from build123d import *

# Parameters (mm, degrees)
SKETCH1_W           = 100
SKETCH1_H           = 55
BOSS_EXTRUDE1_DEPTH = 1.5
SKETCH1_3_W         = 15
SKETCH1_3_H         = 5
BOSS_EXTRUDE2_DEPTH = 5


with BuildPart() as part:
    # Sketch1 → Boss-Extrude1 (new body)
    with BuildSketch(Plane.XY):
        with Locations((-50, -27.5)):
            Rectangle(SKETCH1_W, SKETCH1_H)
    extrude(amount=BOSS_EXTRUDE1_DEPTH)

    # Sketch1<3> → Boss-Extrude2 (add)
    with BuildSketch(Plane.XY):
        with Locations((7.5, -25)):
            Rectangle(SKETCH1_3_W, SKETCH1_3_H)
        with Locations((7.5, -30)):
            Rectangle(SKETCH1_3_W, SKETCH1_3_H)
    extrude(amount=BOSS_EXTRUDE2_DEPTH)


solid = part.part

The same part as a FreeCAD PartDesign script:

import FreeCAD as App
import Part
import Sketcher

V = App.Vector


def add_polygon(sketch, points):
    """Adds a closed chain of lines whose ends are joined by coincident constraints."""
    first, n = sketch.GeometryCount, len(points)
    for a, b in zip(points, points[1:] + points[:1]):
        sketch.addGeometry(Part.LineSegment(App.Vector(*a, 0), App.Vector(*b, 0)), False)
    for i in range(n):
        sketch.addConstraint(Sketcher.Constraint("Coincident", first + i, 2, first + (i + 1) % n, 1))

doc = App.newDocument("Part")
params = doc.addObject("Spreadsheet::Sheet", "Params")
for row, (alias, value) in enumerate([
    ("sketch1_width", "100 mm"),
    ("sketch1_height", "55 mm"),
    ("pad1_length", "1.5 mm"),
    ("sketch2_width", "15 mm"),
    ("sketch2_height", "10 mm"),
    ("pad2_length", "5 mm"),
], start=1):
    params.set(f"A{row}", alias)
    params.set(f"B{row}", "=" + value)
    params.setAlias(f"B{row}", alias)

body = doc.addObject("PartDesign::Body", "Body")

sketch1 = body.newObject("Sketcher::SketchObject", "Sketch")
sketch1.AttachmentSupport = (doc.getObject("XY_Plane"), [""])
sketch1.MapMode = "FlatFace"
add_polygon(sketch1, [(-100, 0), (-100, -55), (0, -55), (0, 0)])
sketch1.addConstraint([
    Sketcher.Constraint("Vertical", 0),
    Sketcher.Constraint("Horizontal", 1),
    Sketcher.Constraint("Vertical", 2),
    Sketcher.Constraint("Horizontal", 3),
    Sketcher.Constraint("Coincident", 2, 2, -1, 1),
    Sketcher.Constraint("DistanceX", 1, 1, 1, 2, 100.0),
    Sketcher.Constraint("DistanceY", 0, 2, 0, 1, 55.0),
])
sketch1.setExpression("Constraints[9]", "Params.sketch1_width")
sketch1.setExpression("Constraints[10]", "Params.sketch1_height")
pad1 = body.newObject("PartDesign::Pad", "Pad")
pad1.Profile = sketch1
pad1.setExpression("Length", "Params.pad1_length")

sketch2 = body.newObject("Sketcher::SketchObject", "Sketch001")
sketch2.AttachmentSupport = (doc.getObject("XY_Plane"), [""])
sketch2.MapMode = "FlatFace"
add_polygon(sketch2, [(0, -22.5), (0, -32.5), (15, -32.5), (15, -22.5)])
sketch2.addConstraint([
    Sketcher.Constraint("Vertical", 0),
    Sketcher.Constraint("Horizontal", 1),
    Sketcher.Constraint("Vertical", 2),
    Sketcher.Constraint("Horizontal", 3),
    Sketcher.Constraint("PointOnObject", 0, 2, -2),
    Sketcher.Constraint("DistanceX", 1, 1, 1, 2, 15.0),
    Sketcher.Constraint("DistanceY", 0, 2, 0, 1, 10.0),
    Sketcher.Constraint("DistanceY", 0, 2, -1, 1, 32.5),
])
sketch2.setExpression("Constraints[9]", "Params.sketch2_width")
sketch2.setExpression("Constraints[10]", "Params.sketch2_height")
pad2 = body.newObject("PartDesign::Pad", "Pad001")
pad2.Profile = sketch2
pad2.setExpression("Length", "Params.pad2_length")

doc.recompute()
